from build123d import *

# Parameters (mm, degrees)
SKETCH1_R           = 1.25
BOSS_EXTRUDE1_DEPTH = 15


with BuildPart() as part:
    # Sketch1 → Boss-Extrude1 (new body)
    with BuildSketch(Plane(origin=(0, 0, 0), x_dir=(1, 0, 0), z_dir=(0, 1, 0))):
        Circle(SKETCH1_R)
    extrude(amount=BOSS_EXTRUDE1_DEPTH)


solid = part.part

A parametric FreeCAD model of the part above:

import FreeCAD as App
import Part
import Sketcher
from FreeCAD import Vector
Q = App.Units.Quantity

doc = App.newDocument("Part")
body = doc.addObject("PartDesign::Body", "Body")

sketch1 = doc.addObject("Sketcher::SketchObject", "Sketch")
body.addObject(sketch1)
sketch1.AttachmentSupport = (doc.XZ_Plane, [""])
sketch1.MapMode = "FlatFace"
sketch1.addGeometry(Part.Circle(Vector(0, 0, 0), Vector(0, 0, 1), 1.2), False)
sketch1.addConstraint(Sketcher.Constraint("Coincident", 0, 3, -1, 1))
sketch1.addConstraint(Sketcher.Constraint("Diameter", 0, Q("2.5 mm")))
pad1 = doc.addObject("PartDesign::Pad", "Pad")
body.addObject(pad1)
pad1.Profile = sketch1
pad1.Length = 15
pad1.Reversed = True

doc.recompute()
